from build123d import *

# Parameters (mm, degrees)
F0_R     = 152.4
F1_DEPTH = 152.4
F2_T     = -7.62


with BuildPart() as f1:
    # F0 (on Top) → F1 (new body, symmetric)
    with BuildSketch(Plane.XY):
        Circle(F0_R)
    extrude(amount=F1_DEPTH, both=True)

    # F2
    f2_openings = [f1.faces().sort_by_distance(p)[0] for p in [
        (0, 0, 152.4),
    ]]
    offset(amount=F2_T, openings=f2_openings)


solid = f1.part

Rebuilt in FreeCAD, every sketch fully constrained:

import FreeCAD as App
import Part
import Sketcher
Q = App.Units.Quantity


def faces_at(feature, points):
    """Names of the faces that lie closest to the given points."""
    faces = feature.Shape.Faces
    near = lambda p: min(range(len(faces)), key=lambda i: faces[i].distToShape(Part.Vertex(*p))[0])
    return sorted({f"Face{near(p) + 1}" for p in points})

doc = App.newDocument("Part")
body = doc.addObject("PartDesign::Body", "Body")

sketch1 = doc.addObject("Sketcher::SketchObject", "Sketch")
body.addObject(sketch1)
sketch1.AttachmentSupport = (doc.XY_Plane, [""])
sketch1.MapMode = "FlatFace"
sketch1.addGeometry(Part.Circle(App.Vector(0, 0, 0), App.Vector(0, 0, 1), 152), False)
sketch1.addConstraint([
    Sketcher.Constraint("Coincident", 0, 3, -1, 1),
    Sketcher.Constraint("Diameter", 0, Q("12 in")),
])
pad1 = doc.addObject("PartDesign::Pad", "Pad")
body.addObject(pad1)
pad1.Profile = sketch1
pad1.Length = Q("12 in")
pad1.Midplane = True
doc.recompute()

thickness = doc.addObject("PartDesign::Thickness", "Thickness")
body.addObject(thickness)
thickness.Base = (pad1, faces_at(pad1, [(0, 0, 152.4)]))
thickness.Value = Q("0.3 in")
thickness.Reversed = True
thickness.Join = "Arc"

doc.recompute()
